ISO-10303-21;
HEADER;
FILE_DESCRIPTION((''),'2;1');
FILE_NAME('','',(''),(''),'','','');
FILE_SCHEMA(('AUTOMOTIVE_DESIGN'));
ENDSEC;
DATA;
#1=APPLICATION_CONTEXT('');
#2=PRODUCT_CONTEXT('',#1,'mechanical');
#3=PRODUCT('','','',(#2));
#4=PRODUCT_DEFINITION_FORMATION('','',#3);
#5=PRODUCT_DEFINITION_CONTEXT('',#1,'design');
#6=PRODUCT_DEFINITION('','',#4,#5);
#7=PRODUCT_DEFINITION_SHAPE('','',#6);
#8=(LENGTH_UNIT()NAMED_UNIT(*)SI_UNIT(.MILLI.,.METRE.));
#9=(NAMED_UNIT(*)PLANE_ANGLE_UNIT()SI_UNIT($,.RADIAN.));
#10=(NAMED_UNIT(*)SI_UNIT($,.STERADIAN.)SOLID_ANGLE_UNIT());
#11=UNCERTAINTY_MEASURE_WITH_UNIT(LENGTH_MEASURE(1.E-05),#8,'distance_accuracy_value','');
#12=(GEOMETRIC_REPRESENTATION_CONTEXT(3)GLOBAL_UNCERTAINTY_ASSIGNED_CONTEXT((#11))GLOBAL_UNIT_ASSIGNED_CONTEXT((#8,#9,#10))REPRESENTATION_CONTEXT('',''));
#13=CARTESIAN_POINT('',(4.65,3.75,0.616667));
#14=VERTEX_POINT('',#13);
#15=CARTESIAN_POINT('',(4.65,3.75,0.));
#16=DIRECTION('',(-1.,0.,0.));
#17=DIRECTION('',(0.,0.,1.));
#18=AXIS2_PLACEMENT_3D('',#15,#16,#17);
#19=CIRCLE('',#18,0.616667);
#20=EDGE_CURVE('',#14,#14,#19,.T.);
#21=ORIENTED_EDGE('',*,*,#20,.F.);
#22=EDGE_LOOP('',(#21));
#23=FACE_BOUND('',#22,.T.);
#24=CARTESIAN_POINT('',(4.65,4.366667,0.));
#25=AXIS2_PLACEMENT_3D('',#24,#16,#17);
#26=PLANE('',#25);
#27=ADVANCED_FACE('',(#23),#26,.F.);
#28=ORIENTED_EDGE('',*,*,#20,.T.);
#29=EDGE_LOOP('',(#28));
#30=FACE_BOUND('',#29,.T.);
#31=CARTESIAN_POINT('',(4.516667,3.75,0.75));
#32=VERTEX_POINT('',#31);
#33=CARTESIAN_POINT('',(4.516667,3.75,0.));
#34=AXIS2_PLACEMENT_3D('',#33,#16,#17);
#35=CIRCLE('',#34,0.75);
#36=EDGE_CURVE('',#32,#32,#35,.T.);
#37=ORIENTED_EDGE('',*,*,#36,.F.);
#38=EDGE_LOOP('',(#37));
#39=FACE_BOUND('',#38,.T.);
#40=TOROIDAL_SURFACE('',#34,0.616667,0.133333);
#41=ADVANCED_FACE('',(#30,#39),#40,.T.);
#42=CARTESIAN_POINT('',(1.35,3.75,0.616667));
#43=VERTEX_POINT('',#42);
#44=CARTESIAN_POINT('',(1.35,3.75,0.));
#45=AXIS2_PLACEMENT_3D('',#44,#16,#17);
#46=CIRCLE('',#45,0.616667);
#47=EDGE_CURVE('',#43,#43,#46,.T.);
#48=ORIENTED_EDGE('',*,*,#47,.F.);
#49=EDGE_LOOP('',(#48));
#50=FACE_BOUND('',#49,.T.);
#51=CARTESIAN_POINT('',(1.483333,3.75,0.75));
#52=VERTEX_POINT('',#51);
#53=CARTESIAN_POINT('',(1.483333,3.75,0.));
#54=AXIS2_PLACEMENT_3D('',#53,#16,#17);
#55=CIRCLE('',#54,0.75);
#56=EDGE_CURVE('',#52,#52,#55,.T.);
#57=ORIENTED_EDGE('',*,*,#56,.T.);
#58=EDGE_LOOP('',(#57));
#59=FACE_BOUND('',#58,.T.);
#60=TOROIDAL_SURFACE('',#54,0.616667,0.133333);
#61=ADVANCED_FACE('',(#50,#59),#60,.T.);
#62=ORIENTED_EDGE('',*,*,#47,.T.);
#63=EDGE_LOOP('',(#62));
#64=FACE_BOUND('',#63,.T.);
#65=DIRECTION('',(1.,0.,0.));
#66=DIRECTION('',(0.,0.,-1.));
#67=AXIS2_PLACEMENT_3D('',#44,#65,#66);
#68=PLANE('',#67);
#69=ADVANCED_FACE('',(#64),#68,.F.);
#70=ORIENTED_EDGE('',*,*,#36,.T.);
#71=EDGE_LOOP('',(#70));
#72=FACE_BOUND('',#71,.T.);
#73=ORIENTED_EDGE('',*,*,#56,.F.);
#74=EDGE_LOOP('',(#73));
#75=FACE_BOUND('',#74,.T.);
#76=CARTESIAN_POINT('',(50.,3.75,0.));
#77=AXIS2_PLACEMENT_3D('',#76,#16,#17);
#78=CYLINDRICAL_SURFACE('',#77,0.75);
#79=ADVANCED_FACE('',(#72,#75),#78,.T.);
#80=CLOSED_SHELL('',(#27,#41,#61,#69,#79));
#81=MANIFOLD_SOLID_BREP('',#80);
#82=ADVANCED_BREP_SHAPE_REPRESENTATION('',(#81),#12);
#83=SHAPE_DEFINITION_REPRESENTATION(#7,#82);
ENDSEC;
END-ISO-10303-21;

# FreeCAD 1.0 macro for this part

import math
import FreeCAD as App
import Part
import Sketcher
from FreeCAD import Vector
Q = App.Units.Quantity

doc = App.newDocument("Part")
body = doc.addObject("PartDesign::Body", "Body")

# Sketch on XY plane
sketch1 = body.newObject("Sketcher::SketchObject", "Sketch")
sketch1.AttachmentSupport = (doc.getObject("XY_Plane"), [""])
sketch1.MapMode = "FlatFace"
sketch1.addGeometry([
    Part.LineSegment(Vector(1.35, 4.37, 0), Vector(1.35, 3.75, 0)),  # 0
    Part.LineSegment(Vector(1.35, 3.75, 0), Vector(4.65, 3.75, 0)),  # 1
    Part.LineSegment(Vector(4.65, 3.75, 0), Vector(4.65, 4.37, 0)),  # 2
    Part.ArcOfCircle(Part.Circle(Vector(4.52, 4.37, 0), Vector(0, 0, 1), 0.13), math.radians(0), math.radians(90)),  # 3
    Part.LineSegment(Vector(4.52, 4.5, 0), Vector(1.48, 4.5, 0)),  # 4
    Part.ArcOfCircle(Part.Circle(Vector(1.48, 4.37, 0), Vector(0, 0, 1), 0.13), math.radians(90), math.radians(180)),  # 5
], False)
sketch1.addGeometry(Part.LineSegment(Vector(4.65, 3.75, 0), Vector(1.35, 3.75, 0)), True)  # axis
sketch1.addConstraint([
    Sketcher.Constraint("Coincident", 0, 2, 1, 1),
    Sketcher.Constraint("Coincident", 1, 2, 2, 1),
    Sketcher.Constraint("Tangent", 2, 2, 3, 1),
    Sketcher.Constraint("Tangent", 3, 2, 4, 1),
    Sketcher.Constraint("Tangent", 4, 2, 5, 1),
    Sketcher.Constraint("Tangent", 5, 2, 0, 1),
    Sketcher.Constraint("Vertical", 0),
    Sketcher.Constraint("Horizontal", 1),
    Sketcher.Constraint("Vertical", 2),
    Sketcher.Constraint("Horizontal", 4),
    Sketcher.Constraint("Horizontal", 6),
    Sketcher.Constraint("Coincident", 6, 1, 1, 2),
    Sketcher.Constraint("Equal", 3, 5),
    Sketcher.Constraint("Vertical", 5, 2, 6, 2),
    Sketcher.Constraint("DistanceX", 1, 1, 1, 2, Q("3.3 mm")),
    Sketcher.Constraint("DistanceY", -1, 1, 3, 2, Q("4.5 mm")),
    Sketcher.Constraint("DistanceX", -1, 1, 0, 2, Q("1.35 mm")),
    Sketcher.Constraint("DistanceY", -1, 1, 0, 2, Q("3.75 mm")),
    Sketcher.Constraint("Radius", 3, Q("0.133333 mm")),
])
revolution = body.newObject("PartDesign::Revolution", "Revolution")
revolution.Profile = sketch1
revolution.ReferenceAxis = (sketch1, ["Axis0"])
revolution.Angle = 360

doc.recompute()
